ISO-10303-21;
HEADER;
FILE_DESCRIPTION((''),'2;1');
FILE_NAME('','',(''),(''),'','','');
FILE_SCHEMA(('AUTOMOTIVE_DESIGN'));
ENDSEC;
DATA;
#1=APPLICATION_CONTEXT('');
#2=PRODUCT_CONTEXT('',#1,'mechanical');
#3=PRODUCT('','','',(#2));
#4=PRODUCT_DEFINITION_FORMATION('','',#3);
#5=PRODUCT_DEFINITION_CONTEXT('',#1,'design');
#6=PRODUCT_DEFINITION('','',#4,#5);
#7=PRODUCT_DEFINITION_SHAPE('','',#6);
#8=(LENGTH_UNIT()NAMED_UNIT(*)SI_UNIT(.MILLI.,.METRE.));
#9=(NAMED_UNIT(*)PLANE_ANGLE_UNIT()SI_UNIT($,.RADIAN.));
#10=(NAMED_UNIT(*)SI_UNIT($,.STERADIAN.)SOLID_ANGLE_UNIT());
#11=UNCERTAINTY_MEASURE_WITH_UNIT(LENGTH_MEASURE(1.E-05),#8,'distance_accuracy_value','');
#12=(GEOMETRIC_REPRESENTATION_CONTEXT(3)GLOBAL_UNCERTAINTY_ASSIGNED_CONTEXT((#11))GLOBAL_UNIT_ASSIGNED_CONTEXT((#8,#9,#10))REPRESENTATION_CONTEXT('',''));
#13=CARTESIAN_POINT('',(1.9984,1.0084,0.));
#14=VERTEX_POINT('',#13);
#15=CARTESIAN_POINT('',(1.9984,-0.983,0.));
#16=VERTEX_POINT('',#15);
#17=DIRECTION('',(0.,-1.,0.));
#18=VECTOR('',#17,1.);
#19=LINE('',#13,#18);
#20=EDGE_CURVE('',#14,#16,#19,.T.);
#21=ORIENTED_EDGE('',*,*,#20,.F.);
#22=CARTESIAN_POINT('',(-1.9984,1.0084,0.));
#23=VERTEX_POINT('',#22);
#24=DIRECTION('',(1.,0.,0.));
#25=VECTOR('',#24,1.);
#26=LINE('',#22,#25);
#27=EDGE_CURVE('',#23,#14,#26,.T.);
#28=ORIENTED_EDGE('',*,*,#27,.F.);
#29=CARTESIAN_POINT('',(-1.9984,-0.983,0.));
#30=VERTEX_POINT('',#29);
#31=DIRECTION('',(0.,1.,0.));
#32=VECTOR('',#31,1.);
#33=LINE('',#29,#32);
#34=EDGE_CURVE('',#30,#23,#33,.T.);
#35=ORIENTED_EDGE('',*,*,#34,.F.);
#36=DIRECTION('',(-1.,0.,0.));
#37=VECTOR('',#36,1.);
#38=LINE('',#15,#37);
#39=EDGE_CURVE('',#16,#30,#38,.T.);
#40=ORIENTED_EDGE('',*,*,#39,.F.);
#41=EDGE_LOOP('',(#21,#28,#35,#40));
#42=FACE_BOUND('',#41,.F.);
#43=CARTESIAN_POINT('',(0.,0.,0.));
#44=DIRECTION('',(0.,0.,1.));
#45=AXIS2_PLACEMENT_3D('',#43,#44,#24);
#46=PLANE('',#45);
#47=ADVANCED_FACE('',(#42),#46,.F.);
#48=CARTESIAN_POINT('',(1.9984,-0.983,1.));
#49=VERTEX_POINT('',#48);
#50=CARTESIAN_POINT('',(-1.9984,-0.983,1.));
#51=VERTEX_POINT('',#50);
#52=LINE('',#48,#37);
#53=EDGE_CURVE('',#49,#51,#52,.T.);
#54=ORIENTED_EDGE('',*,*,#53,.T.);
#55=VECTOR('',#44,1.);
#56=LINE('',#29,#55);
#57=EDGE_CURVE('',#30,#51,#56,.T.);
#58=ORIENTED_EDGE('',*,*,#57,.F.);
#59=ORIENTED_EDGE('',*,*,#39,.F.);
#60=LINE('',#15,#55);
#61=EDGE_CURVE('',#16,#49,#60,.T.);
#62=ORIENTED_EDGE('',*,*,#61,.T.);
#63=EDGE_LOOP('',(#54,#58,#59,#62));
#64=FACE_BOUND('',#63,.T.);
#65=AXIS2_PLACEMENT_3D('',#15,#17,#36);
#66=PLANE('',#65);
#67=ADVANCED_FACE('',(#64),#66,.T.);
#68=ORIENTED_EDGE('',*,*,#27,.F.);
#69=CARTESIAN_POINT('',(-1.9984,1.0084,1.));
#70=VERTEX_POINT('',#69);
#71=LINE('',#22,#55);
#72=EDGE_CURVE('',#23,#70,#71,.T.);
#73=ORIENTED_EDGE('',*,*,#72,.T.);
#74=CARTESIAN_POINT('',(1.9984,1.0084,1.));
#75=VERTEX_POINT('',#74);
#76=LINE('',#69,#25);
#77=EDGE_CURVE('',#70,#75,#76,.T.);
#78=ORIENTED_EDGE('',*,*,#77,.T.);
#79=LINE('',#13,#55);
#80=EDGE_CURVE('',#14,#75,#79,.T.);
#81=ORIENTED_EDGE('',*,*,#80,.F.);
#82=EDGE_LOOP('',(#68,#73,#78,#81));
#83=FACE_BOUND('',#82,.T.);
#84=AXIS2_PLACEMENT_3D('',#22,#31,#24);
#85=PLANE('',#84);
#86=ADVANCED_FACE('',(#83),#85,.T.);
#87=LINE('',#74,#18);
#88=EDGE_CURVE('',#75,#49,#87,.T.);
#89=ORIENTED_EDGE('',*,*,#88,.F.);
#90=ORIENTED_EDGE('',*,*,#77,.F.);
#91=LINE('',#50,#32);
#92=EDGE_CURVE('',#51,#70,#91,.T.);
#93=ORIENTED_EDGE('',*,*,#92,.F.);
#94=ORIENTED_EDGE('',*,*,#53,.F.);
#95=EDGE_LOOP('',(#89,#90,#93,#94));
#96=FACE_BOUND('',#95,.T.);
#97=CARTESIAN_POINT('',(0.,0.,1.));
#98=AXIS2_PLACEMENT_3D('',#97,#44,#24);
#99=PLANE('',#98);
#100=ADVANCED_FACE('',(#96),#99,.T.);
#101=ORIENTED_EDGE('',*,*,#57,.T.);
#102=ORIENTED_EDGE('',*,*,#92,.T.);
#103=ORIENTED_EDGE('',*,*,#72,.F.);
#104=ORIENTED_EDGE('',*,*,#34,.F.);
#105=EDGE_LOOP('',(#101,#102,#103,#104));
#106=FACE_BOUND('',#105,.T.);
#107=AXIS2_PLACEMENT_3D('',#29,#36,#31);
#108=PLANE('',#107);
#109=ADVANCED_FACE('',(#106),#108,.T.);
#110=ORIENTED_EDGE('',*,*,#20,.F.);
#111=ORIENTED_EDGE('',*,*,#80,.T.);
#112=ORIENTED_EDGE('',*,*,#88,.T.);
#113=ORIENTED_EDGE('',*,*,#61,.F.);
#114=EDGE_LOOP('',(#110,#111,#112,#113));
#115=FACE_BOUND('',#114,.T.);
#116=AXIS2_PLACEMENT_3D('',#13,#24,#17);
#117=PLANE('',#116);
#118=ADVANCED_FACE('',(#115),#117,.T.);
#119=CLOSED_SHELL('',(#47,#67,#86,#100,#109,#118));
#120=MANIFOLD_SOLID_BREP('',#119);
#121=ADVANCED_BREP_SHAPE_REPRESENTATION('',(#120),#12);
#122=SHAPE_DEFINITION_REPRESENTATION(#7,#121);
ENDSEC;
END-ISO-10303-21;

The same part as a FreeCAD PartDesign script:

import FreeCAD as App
import Part
import Sketcher

V = App.Vector
Q = App.Units.Quantity

doc = App.newDocument("Part")
body = doc.addObject("PartDesign::Body", "Body")

# Sketch on XY plane
sketch1 = body.newObject("Sketcher::SketchObject", "Sketch")
sketch1.AttachmentSupport = (doc.getObject("XY_Plane"), [""])
sketch1.MapMode = "FlatFace"
sketch1.addGeometry([
    Part.LineSegment(V(2, 1, 0), V(-2, 1, 0)),
    Part.LineSegment(V(-2, 1, 0), V(-2, -1, 0)),
    Part.LineSegment(V(-2, -1, 0), V(2, -1, 0)),
    Part.LineSegment(V(2, -1, 0), V(2, 1, 0)),
], False)
sketch1.addConstraint([
    Sketcher.Constraint("Coincident", 0, 2, 1, 1),
    Sketcher.Constraint("Coincident", 1, 2, 2, 1),
    Sketcher.Constraint("Coincident", 2, 2, 3, 1),
    Sketcher.Constraint("Coincident", 3, 2, 0, 1),
    Sketcher.Constraint("Horizontal", 0),
    Sketcher.Constraint("Vertical", 1),
    Sketcher.Constraint("Horizontal", 2),
    Sketcher.Constraint("Vertical", 3),
    Sketcher.Constraint("DistanceX", 0, 2, 0, 1, Q("3.9968 mm")),
    Sketcher.Constraint("DistanceY", 1, 2, 1, 1, Q("1.9914 mm")),
    Sketcher.Constraint("DistanceY", 1, 2, -1, 1, Q("0.983 mm")),
    Sketcher.Constraint("DistanceX", 0, 2, -1, 1, Q("1.9984 mm")),
])
pad1 = body.newObject("PartDesign::Pad", "Pad")
pad1.Profile = sketch1
pad1.Length = 1

doc.recompute()
